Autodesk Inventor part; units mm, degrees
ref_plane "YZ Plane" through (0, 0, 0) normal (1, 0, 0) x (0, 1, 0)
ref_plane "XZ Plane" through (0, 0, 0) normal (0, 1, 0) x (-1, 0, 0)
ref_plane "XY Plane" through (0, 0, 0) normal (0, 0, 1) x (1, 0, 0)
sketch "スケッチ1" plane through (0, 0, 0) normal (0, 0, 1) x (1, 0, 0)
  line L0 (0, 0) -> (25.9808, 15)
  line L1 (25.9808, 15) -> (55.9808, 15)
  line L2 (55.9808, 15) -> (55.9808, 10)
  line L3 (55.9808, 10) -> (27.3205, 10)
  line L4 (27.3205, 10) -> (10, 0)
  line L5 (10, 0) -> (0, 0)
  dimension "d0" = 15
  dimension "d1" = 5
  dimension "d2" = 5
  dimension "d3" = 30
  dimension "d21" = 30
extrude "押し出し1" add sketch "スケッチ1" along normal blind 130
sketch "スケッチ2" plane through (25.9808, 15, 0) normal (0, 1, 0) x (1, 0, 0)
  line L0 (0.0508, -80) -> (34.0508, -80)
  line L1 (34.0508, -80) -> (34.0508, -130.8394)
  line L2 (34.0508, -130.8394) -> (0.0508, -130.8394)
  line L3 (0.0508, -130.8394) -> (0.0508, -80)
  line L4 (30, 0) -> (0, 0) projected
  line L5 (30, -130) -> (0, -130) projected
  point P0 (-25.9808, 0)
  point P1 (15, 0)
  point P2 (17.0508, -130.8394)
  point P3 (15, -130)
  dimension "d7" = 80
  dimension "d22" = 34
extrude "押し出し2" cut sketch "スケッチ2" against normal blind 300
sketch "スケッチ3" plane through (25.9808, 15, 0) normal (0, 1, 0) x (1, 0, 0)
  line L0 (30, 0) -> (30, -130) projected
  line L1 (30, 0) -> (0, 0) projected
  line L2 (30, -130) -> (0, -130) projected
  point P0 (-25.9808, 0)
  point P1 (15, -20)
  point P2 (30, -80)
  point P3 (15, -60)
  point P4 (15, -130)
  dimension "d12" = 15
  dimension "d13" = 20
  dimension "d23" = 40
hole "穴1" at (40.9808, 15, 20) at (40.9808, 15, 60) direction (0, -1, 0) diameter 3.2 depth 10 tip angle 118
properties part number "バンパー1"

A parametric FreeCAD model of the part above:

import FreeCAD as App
import Part
import Sketcher

V = App.Vector
Q = App.Units.Quantity

doc = App.newDocument("Part")
body = doc.addObject("PartDesign::Body", "Body")

# Sketch on XY plane
sketch1 = body.newObject("Sketcher::SketchObject", "Sketch")
sketch1.AttachmentSupport = (doc.getObject("XY_Plane"), [""])
sketch1.MapMode = "FlatFace"
sketch1.addGeometry(Part.LineSegment(V(26, 15, 0), V(0, 0, 0)), False)
sketch1.addGeometry(Part.LineSegment(V(0, 0, 0), V(10, 0, 0)), False)
sketch1.addGeometry(Part.LineSegment(V(10, 0, 0), V(27, 10, 0)), False)
sketch1.addGeometry(Part.LineSegment(V(27, 10, 0), V(56, 10, 0)), False)
sketch1.addGeometry(Part.LineSegment(V(56, 10, 0), V(56, 15, 0)), False)
sketch1.addGeometry(Part.LineSegment(V(56, 15, 0), V(26, 15, 0)), False)
sketch1.addConstraint(Sketcher.Constraint("Coincident", 0, 2, 1, 1))
sketch1.addConstraint(Sketcher.Constraint("Coincident", 1, 2, 2, 1))
sketch1.addConstraint(Sketcher.Constraint("Coincident", 2, 2, 3, 1))
sketch1.addConstraint(Sketcher.Constraint("Coincident", 3, 2, 4, 1))
sketch1.addConstraint(Sketcher.Constraint("Coincident", 4, 2, 5, 1))
sketch1.addConstraint(Sketcher.Constraint("Coincident", 5, 2, 0, 1))
sketch1.addConstraint(Sketcher.Constraint("Horizontal", 1))
sketch1.addConstraint(Sketcher.Constraint("Horizontal", 3))
sketch1.addConstraint(Sketcher.Constraint("Vertical", 4))
sketch1.addConstraint(Sketcher.Constraint("Horizontal", 5))
sketch1.addConstraint(Sketcher.Constraint("Coincident", 0, 2, -1, 1))
sketch1.addConstraint(Sketcher.Constraint("Parallel", 0, 2))
sketch1.addConstraint(Sketcher.Constraint("DistanceX", 5, 2, 5, 1, Q("30 mm")))
sketch1.addConstraint(Sketcher.Constraint("DistanceY", 4, 1, 4, 2, Q("5 mm")))
sketch1.addConstraint(Sketcher.Constraint("Angle", 2, Q("30 deg")))
sketch1.addConstraint(Sketcher.Constraint("Distance", 0, Q("30 mm")))
sketch1.addConstraint(Sketcher.Constraint("DistanceX", 1, 1, 1, 2, Q("10 mm")))
pad1 = body.newObject("PartDesign::Pad", "Pad")
pad1.Profile = sketch1
pad1.Length = 130

# Sketch on XZ plane
sketch2 = body.newObject("Sketcher::SketchObject", "Sketch001")
sketch2.AttachmentSupport = (doc.getObject("XZ_Plane"), [""])
sketch2.MapMode = "FlatFace"
sketch2.AttachmentOffset = App.Placement(V(0, 0, -15), App.Rotation())
sketch2.addGeometry(Part.LineSegment(V(60, 80, 0), V(26, 80, 0)), False)
sketch2.addGeometry(Part.LineSegment(V(26, 80, 0), V(26, 131, 0)), False)
sketch2.addGeometry(Part.LineSegment(V(26, 131, 0), V(60, 131, 0)), False)
sketch2.addGeometry(Part.LineSegment(V(60, 131, 0), V(60, 80, 0)), False)
sketch2.addConstraint(Sketcher.Constraint("Coincident", 0, 2, 1, 1))
sketch2.addConstraint(Sketcher.Constraint("Coincident", 1, 2, 2, 1))
sketch2.addConstraint(Sketcher.Constraint("Coincident", 2, 2, 3, 1))
sketch2.addConstraint(Sketcher.Constraint("Coincident", 3, 2, 0, 1))
sketch2.addConstraint(Sketcher.Constraint("Horizontal", 0))
sketch2.addConstraint(Sketcher.Constraint("Vertical", 1))
sketch2.addConstraint(Sketcher.Constraint("Horizontal", 2))
sketch2.addConstraint(Sketcher.Constraint("Vertical", 3))
sketch2.addConstraint(Sketcher.Constraint("DistanceX", 0, 2, 0, 1, Q("34 mm")))
sketch2.addConstraint(Sketcher.Constraint("DistanceY", -1, 1, 0, 2, Q("80 mm")))
sketch2.addConstraint(Sketcher.Constraint("DistanceY", 1, 1, 1, 2, Q("50.8394 mm")))
sketch2.addConstraint(Sketcher.Constraint("DistanceX", -1, 1, 0, 2, Q("26.0316 mm")))
pocket1 = body.newObject("PartDesign::Pocket", "Pocket")
pocket1.Profile = sketch2
pocket1.Length = 300
pocket1.Reversed = True

# Sketch on XZ plane
sketch3 = body.newObject("Sketcher::SketchObject", "Sketch002")
sketch3.AttachmentSupport = (doc.getObject("XZ_Plane"), [""])
sketch3.MapMode = "FlatFace"
sketch3.AttachmentOffset = App.Placement(V(0, 0, -15), App.Rotation())
sketch3.addGeometry(Part.Circle(V(41, 20, 0), V(0, 0, 1), 1.6), False)
sketch3.addGeometry(Part.Circle(V(41, 60, 0), V(0, 0, 1), 1.6), False)
sketch3.addConstraint(Sketcher.Constraint("Equal", 0, 1))
sketch3.addConstraint(Sketcher.Constraint("Vertical", 0, 3, 1, 3))
sketch3.addConstraint(Sketcher.Constraint("Diameter", 0, Q("3.2 mm")))
sketch3.addConstraint(Sketcher.Constraint("DistanceY", -1, 1, 0, 3, Q("20 mm")))
sketch3.addConstraint(Sketcher.Constraint("DistanceY", -1, 1, 1, 3, Q("60 mm")))
sketch3.addConstraint(Sketcher.Constraint("DistanceX", -1, 1, 0, 3, Q("40.9808 mm")))
doc.recompute()
hole = body.newObject("PartDesign::Hole", "Hole")
hole.Profile = sketch3
hole.ThreadType = "None"
hole.Diameter = 3.2
hole.DepthType = "Dimension"
hole.Depth = 10
hole.DrillPoint = "Angled"
hole.DrillPointAngle = 118
hole.Reversed = True

doc.recompute()
